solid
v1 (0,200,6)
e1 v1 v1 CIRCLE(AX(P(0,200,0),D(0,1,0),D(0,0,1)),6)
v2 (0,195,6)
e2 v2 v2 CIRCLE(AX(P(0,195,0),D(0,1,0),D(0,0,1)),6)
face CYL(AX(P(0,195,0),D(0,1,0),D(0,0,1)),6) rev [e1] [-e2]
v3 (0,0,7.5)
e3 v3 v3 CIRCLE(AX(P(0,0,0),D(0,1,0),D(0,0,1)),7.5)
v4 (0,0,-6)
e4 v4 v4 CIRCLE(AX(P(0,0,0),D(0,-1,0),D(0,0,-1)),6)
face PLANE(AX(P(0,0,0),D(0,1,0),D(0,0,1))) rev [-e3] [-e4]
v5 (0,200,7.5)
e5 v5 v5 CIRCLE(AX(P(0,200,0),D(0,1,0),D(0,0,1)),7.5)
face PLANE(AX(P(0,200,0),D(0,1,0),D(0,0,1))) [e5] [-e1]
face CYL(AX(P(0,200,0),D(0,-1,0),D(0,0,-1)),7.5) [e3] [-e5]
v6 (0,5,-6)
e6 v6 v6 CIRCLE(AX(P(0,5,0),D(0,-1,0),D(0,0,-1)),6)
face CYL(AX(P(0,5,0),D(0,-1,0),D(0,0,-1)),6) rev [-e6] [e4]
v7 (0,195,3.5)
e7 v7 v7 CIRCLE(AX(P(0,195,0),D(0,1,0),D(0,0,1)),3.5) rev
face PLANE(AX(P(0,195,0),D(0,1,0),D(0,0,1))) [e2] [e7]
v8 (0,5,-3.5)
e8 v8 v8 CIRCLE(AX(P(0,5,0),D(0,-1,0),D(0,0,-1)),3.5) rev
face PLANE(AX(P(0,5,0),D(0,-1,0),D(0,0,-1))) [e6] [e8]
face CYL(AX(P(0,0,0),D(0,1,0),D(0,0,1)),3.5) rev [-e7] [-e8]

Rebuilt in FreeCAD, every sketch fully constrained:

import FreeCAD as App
import Part
import Sketcher

V = App.Vector

doc = App.newDocument("Part")
body = doc.addObject("PartDesign::Body", "Body")

# Sketch on XZ plane
sketch1 = body.newObject("Sketcher::SketchObject", "Sketch")
sketch1.AttachmentSupport = (doc.getObject("XZ_Plane"), [""])
sketch1.MapMode = "FlatFace"
sketch1.addGeometry(Part.Circle(V(0, 0, 0), V(0, 0, 1), 8), False)
sketch1.addConstraint([
    Sketcher.Constraint("Coincident", 0, 3, -1, 1),
    Sketcher.Constraint("Diameter", 0, 15.0),
])
pad1 = body.newObject("PartDesign::Pad", "Pad")
pad1.Profile = sketch1
pad1.Length = 200
pad1.Reversed = True

# Sketch on XZ plane
sketch2 = body.newObject("Sketcher::SketchObject", "Sketch001")
sketch2.AttachmentSupport = (doc.getObject("XZ_Plane"), [""])
sketch2.MapMode = "FlatFace"
sketch2.AttachmentOffset = App.Placement(V(0, 0, -200), App.Rotation())
sketch2.addGeometry(Part.Circle(V(0, 0, 0), V(0, 0, 1), 3.5), False)
sketch2.addConstraint([
    Sketcher.Constraint("Coincident", 0, 3, -1, 1),
    Sketcher.Constraint("Diameter", 0, 7.0),
])
pocket1 = body.newObject("PartDesign::Pocket", "Pocket")
pocket1.Profile = sketch2
pocket1.Type = "ThroughAll"
pocket1.Reversed = True

# Sketch on XZ plane
sketch3 = body.newObject("Sketcher::SketchObject", "Sketch002")
sketch3.AttachmentSupport = (doc.getObject("XZ_Plane"), [""])
sketch3.MapMode = "FlatFace"
sketch3.AttachmentOffset = App.Placement(V(0, 0, -200), App.Rotation())
sketch3.addGeometry(Part.Circle(V(0, 0, 0), V(0, 0, 1), 6), False)
sketch3.addConstraint([
    Sketcher.Constraint("Coincident", 0, 3, -1, 1),
    Sketcher.Constraint("Diameter", 0, 12.0),
])
pocket2 = body.newObject("PartDesign::Pocket", "Pocket001")
pocket2.Profile = sketch3
pocket2.Length = 5
pocket2.Reversed = True

# Sketch on XZ plane
sketch4 = body.newObject("Sketcher::SketchObject", "Sketch003")
sketch4.AttachmentSupport = (doc.getObject("XZ_Plane"), [""])
sketch4.MapMode = "FlatFace"
sketch4.addGeometry(Part.Circle(V(0, 0, 0), V(0, 0, 1), 6), False)
sketch4.addConstraint([
    Sketcher.Constraint("Coincident", 0, 3, -1, 1),
    Sketcher.Constraint("Diameter", 0, 12.0),
])
pocket3 = body.newObject("PartDesign::Pocket", "Pocket002")
pocket3.Profile = sketch4
pocket3.Length = 5

doc.recompute()
